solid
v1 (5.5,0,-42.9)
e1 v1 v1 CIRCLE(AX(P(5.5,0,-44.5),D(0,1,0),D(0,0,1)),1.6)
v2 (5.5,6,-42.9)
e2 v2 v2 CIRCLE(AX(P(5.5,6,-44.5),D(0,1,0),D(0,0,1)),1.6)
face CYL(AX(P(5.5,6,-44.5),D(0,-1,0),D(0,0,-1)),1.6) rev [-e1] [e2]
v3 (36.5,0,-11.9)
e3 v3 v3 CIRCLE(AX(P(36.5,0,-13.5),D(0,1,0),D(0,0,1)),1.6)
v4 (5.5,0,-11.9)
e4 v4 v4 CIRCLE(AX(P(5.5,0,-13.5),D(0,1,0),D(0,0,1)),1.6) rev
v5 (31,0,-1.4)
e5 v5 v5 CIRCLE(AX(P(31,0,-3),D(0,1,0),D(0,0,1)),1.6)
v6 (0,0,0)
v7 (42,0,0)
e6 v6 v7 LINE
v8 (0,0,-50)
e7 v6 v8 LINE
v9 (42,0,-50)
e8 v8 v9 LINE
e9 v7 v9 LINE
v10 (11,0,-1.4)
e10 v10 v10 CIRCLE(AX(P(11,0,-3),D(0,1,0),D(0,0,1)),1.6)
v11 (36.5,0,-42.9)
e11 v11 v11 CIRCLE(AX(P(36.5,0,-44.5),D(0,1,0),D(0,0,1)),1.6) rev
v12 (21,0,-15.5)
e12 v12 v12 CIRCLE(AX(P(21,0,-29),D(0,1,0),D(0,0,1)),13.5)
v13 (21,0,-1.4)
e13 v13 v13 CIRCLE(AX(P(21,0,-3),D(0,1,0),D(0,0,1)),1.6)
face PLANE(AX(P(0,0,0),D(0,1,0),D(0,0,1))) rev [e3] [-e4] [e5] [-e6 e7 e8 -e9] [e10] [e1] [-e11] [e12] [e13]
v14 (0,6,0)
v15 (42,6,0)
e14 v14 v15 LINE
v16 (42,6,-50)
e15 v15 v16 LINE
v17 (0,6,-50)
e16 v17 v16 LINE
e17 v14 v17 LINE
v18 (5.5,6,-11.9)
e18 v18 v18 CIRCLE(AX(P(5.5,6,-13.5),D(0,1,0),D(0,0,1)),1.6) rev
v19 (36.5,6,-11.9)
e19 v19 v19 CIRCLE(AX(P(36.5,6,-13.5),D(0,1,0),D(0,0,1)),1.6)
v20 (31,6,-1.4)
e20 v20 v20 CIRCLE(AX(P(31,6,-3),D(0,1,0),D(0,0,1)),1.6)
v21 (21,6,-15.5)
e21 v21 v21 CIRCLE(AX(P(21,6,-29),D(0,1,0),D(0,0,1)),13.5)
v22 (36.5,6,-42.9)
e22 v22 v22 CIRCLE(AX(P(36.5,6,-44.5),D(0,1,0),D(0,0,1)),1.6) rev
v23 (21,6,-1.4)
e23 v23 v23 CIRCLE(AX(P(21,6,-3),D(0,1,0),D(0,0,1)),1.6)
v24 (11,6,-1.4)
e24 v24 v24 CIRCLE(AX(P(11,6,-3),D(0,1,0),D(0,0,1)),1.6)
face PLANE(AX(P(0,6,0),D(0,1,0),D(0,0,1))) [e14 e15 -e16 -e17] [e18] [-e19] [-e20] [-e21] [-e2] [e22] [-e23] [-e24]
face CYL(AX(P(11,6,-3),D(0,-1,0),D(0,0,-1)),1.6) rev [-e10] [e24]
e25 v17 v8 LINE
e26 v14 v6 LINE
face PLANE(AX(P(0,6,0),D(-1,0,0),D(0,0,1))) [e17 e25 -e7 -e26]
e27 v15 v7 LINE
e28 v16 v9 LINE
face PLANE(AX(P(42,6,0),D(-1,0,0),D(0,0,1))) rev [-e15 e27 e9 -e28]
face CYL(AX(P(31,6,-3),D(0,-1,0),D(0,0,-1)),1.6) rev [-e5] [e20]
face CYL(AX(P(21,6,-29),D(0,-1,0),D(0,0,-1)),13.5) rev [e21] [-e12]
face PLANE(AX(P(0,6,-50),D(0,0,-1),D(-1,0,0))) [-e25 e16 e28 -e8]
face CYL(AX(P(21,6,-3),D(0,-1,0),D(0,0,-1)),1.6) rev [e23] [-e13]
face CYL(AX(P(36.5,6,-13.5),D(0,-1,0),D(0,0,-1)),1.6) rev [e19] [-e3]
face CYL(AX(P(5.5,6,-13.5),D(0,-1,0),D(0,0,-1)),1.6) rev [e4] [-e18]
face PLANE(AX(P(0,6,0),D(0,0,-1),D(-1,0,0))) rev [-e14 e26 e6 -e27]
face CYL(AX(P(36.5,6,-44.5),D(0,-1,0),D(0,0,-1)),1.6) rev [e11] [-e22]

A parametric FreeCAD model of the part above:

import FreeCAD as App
import Part
import Sketcher
from FreeCAD import Vector


def add_polygon(sketch, points):
    """Adds a closed chain of lines whose ends are joined by coincident constraints."""
    first, n = sketch.GeometryCount, len(points)
    for a, b in zip(points, points[1:] + points[:1]):
        sketch.addGeometry(Part.LineSegment(App.Vector(*a, 0), App.Vector(*b, 0)), False)
    for i in range(n):
        sketch.addConstraint(Sketcher.Constraint("Coincident", first + i, 2, first + (i + 1) % n, 1))

doc = App.newDocument("Part")
body = doc.addObject("PartDesign::Body", "Body")

sketch1 = doc.addObject("Sketcher::SketchObject", "Sketch")
body.addObject(sketch1)
sketch1.AttachmentSupport = (doc.XZ_Plane, [""])
sketch1.MapMode = "FlatFace"
add_polygon(sketch1, [(0, -50), (0, 0), (42, 0), (42, -50)])
sketch1.addGeometry(Part.Circle(Vector(11, -3, 0), Vector(0, 0, 1), 1.6), False)
sketch1.addGeometry(Part.Circle(Vector(5.5, -13.5, 0), Vector(0, 0, 1), 1.6), False)
sketch1.addGeometry(Part.Circle(Vector(21, -3, 0), Vector(0, 0, 1), 1.6), False)
sketch1.addGeometry(Part.Circle(Vector(31, -3, 0), Vector(0, 0, 1), 1.6), False)
sketch1.addGeometry(Part.Circle(Vector(36.5, -13.5, 0), Vector(0, 0, 1), 1.6), False)
sketch1.addGeometry(Part.Circle(Vector(5.5, -44.5, 0), Vector(0, 0, 1), 1.6), False)
sketch1.addGeometry(Part.Circle(Vector(21, -29, 0), Vector(0, 0, 1), 13.5), False)
sketch1.addGeometry(Part.Circle(Vector(36.5, -44.5, 0), Vector(0, 0, 1), 1.6), False)
sketch1.addConstraint([
    Sketcher.Constraint("Vertical", 0),
    Sketcher.Constraint("Horizontal", 1),
    Sketcher.Constraint("Vertical", 2),
    Sketcher.Constraint("Horizontal", 3),
    Sketcher.Constraint("Coincident", 0, 2, -1, 1),
    Sketcher.Constraint("Equal", 4, 5),
    Sketcher.Constraint("Equal", 5, 6),
    Sketcher.Constraint("Equal", 6, 7),
    Sketcher.Constraint("Equal", 7, 8),
    Sketcher.Constraint("Equal", 8, 9),
    Sketcher.Constraint("Equal", 9, 11),
    Sketcher.Constraint("Horizontal", 4, 3, 6, 3),
    Sketcher.Constraint("Horizontal", 6, 3, 7, 3),
    Sketcher.Constraint("Horizontal", 5, 3, 8, 3),
    Sketcher.Constraint("Horizontal", 9, 3, 11, 3),
    Sketcher.Constraint("Vertical", 5, 3, 9, 3),
    Sketcher.Constraint("Vertical", 6, 3, 10, 3),
    Sketcher.Constraint("Vertical", 8, 3, 11, 3),
    Sketcher.Constraint("Diameter", 10, 27.0),
    Sketcher.Constraint("Diameter", 4, 3.2),
    Sketcher.Constraint("DistanceX", 1, 1, 1, 2, 42.0),
    Sketcher.Constraint("DistanceY", 0, 1, 0, 2, 50.0),
    Sketcher.Constraint("DistanceX", -1, 1, 4, 3, 11.0),
    Sketcher.Constraint("DistanceY", 4, 3, -1, 1, 3.0),
    Sketcher.Constraint("DistanceX", -1, 1, 6, 3, 21.0),
    Sketcher.Constraint("DistanceX", -1, 1, 7, 3, 31.0),
    Sketcher.Constraint("DistanceY", 10, 3, -1, 1, 29.0),
    Sketcher.Constraint("DistanceX", 5, 3, 8, 3, 31.0),
    Sketcher.Constraint("DistanceY", 9, 3, 5, 3, 31.0),
    Sketcher.Constraint("DistanceX", -1, 1, 5, 3, 5.5),
    Sketcher.Constraint("DistanceY", 5, 3, -1, 1, 13.5),
])
pad1 = doc.addObject("PartDesign::Pad", "Pad")
body.addObject(pad1)
pad1.Profile = sketch1
pad1.Length = 6
pad1.Reversed = True

doc.recompute()
